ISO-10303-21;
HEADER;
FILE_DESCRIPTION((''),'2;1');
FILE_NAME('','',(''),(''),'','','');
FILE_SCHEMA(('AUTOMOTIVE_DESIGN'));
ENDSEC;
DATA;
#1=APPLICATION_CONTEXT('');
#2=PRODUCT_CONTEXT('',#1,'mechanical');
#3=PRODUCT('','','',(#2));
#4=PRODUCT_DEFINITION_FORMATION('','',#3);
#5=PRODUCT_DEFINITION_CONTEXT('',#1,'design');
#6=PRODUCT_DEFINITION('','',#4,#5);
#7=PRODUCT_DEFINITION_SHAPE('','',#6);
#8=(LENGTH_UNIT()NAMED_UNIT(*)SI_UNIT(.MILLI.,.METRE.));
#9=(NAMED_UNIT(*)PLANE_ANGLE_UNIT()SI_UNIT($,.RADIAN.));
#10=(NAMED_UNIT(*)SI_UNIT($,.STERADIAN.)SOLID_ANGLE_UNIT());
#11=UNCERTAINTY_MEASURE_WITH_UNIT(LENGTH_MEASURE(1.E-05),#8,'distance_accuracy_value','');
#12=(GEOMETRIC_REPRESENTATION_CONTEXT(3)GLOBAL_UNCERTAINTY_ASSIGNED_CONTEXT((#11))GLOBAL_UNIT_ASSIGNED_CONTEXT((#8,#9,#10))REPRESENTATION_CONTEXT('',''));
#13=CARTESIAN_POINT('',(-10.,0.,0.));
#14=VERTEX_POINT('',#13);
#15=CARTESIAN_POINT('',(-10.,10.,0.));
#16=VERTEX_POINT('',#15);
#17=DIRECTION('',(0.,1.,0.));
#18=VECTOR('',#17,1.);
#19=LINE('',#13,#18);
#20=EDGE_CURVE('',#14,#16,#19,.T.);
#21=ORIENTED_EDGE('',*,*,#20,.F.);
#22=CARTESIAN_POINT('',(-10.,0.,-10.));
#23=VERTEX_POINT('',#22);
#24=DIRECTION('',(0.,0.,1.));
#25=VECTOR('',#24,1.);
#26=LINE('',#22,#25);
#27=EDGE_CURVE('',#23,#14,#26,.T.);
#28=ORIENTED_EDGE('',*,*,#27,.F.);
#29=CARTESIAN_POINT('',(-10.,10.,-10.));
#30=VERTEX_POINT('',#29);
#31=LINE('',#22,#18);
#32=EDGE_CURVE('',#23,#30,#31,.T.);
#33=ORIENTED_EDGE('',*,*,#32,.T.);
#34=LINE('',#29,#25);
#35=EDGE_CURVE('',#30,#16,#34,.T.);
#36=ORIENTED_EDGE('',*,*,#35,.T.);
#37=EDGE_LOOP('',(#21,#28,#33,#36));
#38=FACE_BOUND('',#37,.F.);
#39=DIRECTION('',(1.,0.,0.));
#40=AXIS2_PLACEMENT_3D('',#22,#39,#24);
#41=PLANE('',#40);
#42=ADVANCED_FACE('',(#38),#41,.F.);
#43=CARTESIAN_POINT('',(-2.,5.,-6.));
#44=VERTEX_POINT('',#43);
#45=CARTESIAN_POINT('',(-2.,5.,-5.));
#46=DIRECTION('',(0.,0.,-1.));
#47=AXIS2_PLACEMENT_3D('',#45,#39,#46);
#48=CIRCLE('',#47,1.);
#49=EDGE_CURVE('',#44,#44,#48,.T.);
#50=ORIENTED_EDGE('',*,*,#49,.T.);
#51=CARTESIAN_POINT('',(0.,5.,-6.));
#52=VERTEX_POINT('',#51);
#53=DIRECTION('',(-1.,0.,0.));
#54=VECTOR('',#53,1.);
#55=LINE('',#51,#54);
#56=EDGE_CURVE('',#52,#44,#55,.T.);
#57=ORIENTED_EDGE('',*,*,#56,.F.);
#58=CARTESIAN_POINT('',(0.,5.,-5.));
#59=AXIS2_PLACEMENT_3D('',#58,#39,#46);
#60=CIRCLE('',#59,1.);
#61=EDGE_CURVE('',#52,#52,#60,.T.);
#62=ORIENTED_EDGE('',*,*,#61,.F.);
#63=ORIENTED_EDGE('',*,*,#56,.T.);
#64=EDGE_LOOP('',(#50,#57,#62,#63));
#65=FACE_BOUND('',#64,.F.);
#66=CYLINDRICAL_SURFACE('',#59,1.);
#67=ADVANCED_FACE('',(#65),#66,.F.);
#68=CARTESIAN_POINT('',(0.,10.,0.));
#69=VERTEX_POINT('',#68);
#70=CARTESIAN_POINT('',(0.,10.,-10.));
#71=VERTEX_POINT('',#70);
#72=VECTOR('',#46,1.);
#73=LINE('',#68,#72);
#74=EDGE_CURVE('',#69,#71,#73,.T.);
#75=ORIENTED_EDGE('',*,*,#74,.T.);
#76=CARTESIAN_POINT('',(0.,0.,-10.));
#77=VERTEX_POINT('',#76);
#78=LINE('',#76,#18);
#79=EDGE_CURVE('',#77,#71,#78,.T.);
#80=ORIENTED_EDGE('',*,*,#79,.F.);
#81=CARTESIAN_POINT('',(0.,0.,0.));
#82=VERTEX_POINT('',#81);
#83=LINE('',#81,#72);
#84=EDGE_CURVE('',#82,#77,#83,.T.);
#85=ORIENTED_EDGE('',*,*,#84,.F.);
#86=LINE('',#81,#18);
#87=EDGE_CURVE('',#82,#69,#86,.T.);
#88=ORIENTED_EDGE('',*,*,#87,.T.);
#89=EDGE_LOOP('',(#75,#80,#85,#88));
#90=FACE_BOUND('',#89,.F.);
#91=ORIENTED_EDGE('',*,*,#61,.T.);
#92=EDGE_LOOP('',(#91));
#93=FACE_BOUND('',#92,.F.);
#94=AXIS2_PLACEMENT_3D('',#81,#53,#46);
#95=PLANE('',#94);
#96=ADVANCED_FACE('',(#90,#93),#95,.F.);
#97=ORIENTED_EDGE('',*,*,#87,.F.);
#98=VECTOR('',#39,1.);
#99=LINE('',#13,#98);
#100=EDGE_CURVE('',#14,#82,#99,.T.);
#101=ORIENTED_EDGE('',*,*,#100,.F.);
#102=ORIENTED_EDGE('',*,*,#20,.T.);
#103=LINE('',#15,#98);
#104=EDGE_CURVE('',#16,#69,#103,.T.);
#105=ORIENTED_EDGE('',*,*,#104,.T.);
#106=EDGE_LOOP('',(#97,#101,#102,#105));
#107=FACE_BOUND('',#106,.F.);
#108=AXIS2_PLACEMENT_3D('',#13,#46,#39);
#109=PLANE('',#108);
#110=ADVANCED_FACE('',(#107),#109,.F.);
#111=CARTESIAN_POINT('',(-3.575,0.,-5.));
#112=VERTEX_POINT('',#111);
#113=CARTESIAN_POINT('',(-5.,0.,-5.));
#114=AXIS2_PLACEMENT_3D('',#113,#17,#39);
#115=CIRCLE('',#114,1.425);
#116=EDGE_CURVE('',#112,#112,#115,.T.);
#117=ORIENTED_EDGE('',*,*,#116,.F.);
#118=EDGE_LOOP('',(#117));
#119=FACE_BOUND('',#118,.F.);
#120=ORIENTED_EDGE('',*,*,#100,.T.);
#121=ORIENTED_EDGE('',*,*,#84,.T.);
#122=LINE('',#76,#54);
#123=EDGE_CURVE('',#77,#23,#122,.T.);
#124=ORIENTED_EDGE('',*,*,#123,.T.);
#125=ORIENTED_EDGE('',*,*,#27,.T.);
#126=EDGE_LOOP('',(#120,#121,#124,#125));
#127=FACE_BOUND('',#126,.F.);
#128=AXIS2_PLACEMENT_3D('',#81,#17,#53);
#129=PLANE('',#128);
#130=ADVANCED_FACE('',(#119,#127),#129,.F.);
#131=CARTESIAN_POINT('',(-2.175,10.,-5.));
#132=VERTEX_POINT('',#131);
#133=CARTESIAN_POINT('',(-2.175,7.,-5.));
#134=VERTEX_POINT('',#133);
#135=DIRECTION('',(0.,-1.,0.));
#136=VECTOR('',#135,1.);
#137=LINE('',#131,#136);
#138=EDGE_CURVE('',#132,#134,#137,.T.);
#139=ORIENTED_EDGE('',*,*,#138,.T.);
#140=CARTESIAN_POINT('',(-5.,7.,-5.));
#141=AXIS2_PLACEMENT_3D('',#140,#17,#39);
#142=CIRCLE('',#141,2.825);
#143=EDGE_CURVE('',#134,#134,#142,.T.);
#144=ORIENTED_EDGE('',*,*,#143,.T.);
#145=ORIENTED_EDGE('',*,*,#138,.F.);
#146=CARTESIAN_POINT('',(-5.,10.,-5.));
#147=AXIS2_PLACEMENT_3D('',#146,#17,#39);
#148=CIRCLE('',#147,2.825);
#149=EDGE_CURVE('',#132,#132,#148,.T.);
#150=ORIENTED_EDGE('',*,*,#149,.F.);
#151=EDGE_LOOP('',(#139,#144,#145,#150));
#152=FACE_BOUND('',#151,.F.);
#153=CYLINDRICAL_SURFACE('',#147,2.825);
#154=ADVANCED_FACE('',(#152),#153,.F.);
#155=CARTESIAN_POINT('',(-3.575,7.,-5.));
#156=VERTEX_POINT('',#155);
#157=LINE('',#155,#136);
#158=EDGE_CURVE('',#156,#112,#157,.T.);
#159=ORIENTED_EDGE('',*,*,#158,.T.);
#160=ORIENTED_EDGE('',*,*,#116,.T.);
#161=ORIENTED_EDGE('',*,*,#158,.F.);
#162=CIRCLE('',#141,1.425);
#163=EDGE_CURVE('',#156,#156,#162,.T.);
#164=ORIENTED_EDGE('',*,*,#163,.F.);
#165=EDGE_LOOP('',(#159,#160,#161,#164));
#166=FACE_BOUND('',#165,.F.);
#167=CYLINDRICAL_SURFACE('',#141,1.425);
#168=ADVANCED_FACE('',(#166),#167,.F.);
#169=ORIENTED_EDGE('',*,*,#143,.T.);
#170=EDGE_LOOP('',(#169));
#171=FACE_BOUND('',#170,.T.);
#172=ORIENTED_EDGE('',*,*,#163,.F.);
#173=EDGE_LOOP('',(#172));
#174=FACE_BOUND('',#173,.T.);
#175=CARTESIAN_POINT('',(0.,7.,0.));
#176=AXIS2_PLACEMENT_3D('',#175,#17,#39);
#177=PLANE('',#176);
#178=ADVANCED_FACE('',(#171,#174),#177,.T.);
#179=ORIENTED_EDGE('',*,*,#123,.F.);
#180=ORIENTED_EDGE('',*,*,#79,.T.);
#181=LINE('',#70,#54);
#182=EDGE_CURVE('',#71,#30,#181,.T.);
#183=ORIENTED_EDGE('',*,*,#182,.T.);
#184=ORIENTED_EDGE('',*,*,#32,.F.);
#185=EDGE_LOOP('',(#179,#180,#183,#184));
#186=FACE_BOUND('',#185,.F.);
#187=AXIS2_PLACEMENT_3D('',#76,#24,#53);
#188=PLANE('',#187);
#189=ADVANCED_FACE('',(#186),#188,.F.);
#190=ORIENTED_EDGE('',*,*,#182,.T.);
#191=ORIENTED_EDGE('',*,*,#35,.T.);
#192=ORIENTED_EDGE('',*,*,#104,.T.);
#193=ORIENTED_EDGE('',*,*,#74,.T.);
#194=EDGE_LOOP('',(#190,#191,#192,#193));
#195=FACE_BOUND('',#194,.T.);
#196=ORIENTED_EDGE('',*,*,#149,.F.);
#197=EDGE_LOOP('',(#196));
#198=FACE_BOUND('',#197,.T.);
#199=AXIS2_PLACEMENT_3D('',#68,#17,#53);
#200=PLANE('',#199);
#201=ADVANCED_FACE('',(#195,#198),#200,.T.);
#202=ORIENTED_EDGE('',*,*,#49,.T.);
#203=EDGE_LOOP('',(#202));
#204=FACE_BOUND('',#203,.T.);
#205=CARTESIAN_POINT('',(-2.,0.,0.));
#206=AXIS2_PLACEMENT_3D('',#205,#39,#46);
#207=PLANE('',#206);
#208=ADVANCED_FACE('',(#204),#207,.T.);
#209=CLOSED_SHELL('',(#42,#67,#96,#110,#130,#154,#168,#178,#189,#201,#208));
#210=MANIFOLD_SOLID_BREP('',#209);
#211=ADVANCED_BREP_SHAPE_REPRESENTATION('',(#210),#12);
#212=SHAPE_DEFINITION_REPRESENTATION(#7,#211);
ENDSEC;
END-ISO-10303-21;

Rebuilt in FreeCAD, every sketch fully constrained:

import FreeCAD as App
import Part
import Sketcher

V = App.Vector
Q = App.Units.Quantity

doc = App.newDocument("Part")
body = doc.addObject("PartDesign::Body", "Body")

# Sketch on XZ plane
sketch1 = doc.addObject("Sketcher::SketchObject", "Sketch")
body.addObject(sketch1)
sketch1.AttachmentSupport = (doc.XZ_Plane, [""])
sketch1.MapMode = "FlatFace"
sketch1.addGeometry(Part.LineSegment(V(-10, -10, 0), V(-10, 0, 0)), False)
sketch1.addGeometry(Part.LineSegment(V(-10, 0, 0), V(0, 0, 0)), False)
sketch1.addGeometry(Part.LineSegment(V(0, 0, 0), V(0, -10, 0)), False)
sketch1.addGeometry(Part.LineSegment(V(0, -10, 0), V(-10, -10, 0)), False)
sketch1.addConstraint(Sketcher.Constraint("Coincident", 0, 2, 1, 1))
sketch1.addConstraint(Sketcher.Constraint("Coincident", 1, 2, 2, 1))
sketch1.addConstraint(Sketcher.Constraint("Coincident", 2, 2, 3, 1))
sketch1.addConstraint(Sketcher.Constraint("Coincident", 3, 2, 0, 1))
sketch1.addConstraint(Sketcher.Constraint("Vertical", 0))
sketch1.addConstraint(Sketcher.Constraint("Horizontal", 1))
sketch1.addConstraint(Sketcher.Constraint("Vertical", 2))
sketch1.addConstraint(Sketcher.Constraint("Horizontal", 3))
sketch1.addConstraint(Sketcher.Constraint("Coincident", 1, 2, -1, 1))
sketch1.addConstraint(Sketcher.Constraint("Equal", 3, 0))
sketch1.addConstraint(Sketcher.Constraint("DistanceX", 1, 1, 1, 2, Q("10 mm")))
pad1 = doc.addObject("PartDesign::Pad", "Pad")
body.addObject(pad1)
pad1.Profile = sketch1
pad1.Length = 10
pad1.Reversed = True

# Sketch on XZ plane
sketch2 = doc.addObject("Sketcher::SketchObject", "Sketch001")
body.addObject(sketch2)
sketch2.AttachmentSupport = (doc.XZ_Plane, [""])
sketch2.MapMode = "FlatFace"
sketch2.AttachmentOffset = App.Placement(V(0, 0, -10), App.Rotation())
sketch2.addGeometry(Part.Circle(V(-5, -5, 0), V(0, 0, 1), 2.8), False)
sketch2.addConstraint(Sketcher.Constraint("Diameter", 0, Q("5.65 mm")))
sketch2.addConstraint(Sketcher.Constraint("DistanceX", 0, 3, -1, 1, Q("5 mm")))
sketch2.addConstraint(Sketcher.Constraint("DistanceY", 0, 3, -1, 1, Q("5 mm")))
pocket1 = doc.addObject("PartDesign::Pocket", "Pocket")
body.addObject(pocket1)
pocket1.Profile = sketch2
pocket1.Length = 3
pocket1.Reversed = True

# Sketch on XZ plane
sketch3 = doc.addObject("Sketcher::SketchObject", "Sketch002")
body.addObject(sketch3)
sketch3.AttachmentSupport = (doc.XZ_Plane, [""])
sketch3.MapMode = "FlatFace"
sketch3.AttachmentOffset = App.Placement(V(0, 0, -7), App.Rotation())
sketch3.addGeometry(Part.Circle(V(-5, -5, 0), V(0, 0, 1), 1.4), False)
sketch3.addConstraint(Sketcher.Constraint("Diameter", 0, Q("2.85 mm")))
sketch3.addConstraint(Sketcher.Constraint("DistanceX", 0, 3, -1, 1, Q("5 mm")))
sketch3.addConstraint(Sketcher.Constraint("DistanceY", 0, 3, -1, 1, Q("5 mm")))
pocket2 = doc.addObject("PartDesign::Pocket", "Pocket001")
body.addObject(pocket2)
pocket2.Profile = sketch3
pocket2.Type = "ThroughAll"
pocket2.Reversed = True

# Sketch on YZ plane
sketch4 = doc.addObject("Sketcher::SketchObject", "Sketch003")
body.addObject(sketch4)
sketch4.AttachmentSupport = (doc.YZ_Plane, [""])
sketch4.MapMode = "FlatFace"
sketch4.addGeometry(Part.Circle(V(5, -5, 0), V(0, 0, 1), 1), False)
sketch4.addConstraint(Sketcher.Constraint("Diameter", 0, Q("2 mm")))
sketch4.addConstraint(Sketcher.Constraint("DistanceX", -1, 1, 0, 3, Q("5 mm")))
sketch4.addConstraint(Sketcher.Constraint("DistanceY", 0, 3, -1, 1, Q("5 mm")))
pocket3 = doc.addObject("PartDesign::Pocket", "Pocket002")
body.addObject(pocket3)
pocket3.Profile = sketch4
pocket3.Length = 2

doc.recompute()
